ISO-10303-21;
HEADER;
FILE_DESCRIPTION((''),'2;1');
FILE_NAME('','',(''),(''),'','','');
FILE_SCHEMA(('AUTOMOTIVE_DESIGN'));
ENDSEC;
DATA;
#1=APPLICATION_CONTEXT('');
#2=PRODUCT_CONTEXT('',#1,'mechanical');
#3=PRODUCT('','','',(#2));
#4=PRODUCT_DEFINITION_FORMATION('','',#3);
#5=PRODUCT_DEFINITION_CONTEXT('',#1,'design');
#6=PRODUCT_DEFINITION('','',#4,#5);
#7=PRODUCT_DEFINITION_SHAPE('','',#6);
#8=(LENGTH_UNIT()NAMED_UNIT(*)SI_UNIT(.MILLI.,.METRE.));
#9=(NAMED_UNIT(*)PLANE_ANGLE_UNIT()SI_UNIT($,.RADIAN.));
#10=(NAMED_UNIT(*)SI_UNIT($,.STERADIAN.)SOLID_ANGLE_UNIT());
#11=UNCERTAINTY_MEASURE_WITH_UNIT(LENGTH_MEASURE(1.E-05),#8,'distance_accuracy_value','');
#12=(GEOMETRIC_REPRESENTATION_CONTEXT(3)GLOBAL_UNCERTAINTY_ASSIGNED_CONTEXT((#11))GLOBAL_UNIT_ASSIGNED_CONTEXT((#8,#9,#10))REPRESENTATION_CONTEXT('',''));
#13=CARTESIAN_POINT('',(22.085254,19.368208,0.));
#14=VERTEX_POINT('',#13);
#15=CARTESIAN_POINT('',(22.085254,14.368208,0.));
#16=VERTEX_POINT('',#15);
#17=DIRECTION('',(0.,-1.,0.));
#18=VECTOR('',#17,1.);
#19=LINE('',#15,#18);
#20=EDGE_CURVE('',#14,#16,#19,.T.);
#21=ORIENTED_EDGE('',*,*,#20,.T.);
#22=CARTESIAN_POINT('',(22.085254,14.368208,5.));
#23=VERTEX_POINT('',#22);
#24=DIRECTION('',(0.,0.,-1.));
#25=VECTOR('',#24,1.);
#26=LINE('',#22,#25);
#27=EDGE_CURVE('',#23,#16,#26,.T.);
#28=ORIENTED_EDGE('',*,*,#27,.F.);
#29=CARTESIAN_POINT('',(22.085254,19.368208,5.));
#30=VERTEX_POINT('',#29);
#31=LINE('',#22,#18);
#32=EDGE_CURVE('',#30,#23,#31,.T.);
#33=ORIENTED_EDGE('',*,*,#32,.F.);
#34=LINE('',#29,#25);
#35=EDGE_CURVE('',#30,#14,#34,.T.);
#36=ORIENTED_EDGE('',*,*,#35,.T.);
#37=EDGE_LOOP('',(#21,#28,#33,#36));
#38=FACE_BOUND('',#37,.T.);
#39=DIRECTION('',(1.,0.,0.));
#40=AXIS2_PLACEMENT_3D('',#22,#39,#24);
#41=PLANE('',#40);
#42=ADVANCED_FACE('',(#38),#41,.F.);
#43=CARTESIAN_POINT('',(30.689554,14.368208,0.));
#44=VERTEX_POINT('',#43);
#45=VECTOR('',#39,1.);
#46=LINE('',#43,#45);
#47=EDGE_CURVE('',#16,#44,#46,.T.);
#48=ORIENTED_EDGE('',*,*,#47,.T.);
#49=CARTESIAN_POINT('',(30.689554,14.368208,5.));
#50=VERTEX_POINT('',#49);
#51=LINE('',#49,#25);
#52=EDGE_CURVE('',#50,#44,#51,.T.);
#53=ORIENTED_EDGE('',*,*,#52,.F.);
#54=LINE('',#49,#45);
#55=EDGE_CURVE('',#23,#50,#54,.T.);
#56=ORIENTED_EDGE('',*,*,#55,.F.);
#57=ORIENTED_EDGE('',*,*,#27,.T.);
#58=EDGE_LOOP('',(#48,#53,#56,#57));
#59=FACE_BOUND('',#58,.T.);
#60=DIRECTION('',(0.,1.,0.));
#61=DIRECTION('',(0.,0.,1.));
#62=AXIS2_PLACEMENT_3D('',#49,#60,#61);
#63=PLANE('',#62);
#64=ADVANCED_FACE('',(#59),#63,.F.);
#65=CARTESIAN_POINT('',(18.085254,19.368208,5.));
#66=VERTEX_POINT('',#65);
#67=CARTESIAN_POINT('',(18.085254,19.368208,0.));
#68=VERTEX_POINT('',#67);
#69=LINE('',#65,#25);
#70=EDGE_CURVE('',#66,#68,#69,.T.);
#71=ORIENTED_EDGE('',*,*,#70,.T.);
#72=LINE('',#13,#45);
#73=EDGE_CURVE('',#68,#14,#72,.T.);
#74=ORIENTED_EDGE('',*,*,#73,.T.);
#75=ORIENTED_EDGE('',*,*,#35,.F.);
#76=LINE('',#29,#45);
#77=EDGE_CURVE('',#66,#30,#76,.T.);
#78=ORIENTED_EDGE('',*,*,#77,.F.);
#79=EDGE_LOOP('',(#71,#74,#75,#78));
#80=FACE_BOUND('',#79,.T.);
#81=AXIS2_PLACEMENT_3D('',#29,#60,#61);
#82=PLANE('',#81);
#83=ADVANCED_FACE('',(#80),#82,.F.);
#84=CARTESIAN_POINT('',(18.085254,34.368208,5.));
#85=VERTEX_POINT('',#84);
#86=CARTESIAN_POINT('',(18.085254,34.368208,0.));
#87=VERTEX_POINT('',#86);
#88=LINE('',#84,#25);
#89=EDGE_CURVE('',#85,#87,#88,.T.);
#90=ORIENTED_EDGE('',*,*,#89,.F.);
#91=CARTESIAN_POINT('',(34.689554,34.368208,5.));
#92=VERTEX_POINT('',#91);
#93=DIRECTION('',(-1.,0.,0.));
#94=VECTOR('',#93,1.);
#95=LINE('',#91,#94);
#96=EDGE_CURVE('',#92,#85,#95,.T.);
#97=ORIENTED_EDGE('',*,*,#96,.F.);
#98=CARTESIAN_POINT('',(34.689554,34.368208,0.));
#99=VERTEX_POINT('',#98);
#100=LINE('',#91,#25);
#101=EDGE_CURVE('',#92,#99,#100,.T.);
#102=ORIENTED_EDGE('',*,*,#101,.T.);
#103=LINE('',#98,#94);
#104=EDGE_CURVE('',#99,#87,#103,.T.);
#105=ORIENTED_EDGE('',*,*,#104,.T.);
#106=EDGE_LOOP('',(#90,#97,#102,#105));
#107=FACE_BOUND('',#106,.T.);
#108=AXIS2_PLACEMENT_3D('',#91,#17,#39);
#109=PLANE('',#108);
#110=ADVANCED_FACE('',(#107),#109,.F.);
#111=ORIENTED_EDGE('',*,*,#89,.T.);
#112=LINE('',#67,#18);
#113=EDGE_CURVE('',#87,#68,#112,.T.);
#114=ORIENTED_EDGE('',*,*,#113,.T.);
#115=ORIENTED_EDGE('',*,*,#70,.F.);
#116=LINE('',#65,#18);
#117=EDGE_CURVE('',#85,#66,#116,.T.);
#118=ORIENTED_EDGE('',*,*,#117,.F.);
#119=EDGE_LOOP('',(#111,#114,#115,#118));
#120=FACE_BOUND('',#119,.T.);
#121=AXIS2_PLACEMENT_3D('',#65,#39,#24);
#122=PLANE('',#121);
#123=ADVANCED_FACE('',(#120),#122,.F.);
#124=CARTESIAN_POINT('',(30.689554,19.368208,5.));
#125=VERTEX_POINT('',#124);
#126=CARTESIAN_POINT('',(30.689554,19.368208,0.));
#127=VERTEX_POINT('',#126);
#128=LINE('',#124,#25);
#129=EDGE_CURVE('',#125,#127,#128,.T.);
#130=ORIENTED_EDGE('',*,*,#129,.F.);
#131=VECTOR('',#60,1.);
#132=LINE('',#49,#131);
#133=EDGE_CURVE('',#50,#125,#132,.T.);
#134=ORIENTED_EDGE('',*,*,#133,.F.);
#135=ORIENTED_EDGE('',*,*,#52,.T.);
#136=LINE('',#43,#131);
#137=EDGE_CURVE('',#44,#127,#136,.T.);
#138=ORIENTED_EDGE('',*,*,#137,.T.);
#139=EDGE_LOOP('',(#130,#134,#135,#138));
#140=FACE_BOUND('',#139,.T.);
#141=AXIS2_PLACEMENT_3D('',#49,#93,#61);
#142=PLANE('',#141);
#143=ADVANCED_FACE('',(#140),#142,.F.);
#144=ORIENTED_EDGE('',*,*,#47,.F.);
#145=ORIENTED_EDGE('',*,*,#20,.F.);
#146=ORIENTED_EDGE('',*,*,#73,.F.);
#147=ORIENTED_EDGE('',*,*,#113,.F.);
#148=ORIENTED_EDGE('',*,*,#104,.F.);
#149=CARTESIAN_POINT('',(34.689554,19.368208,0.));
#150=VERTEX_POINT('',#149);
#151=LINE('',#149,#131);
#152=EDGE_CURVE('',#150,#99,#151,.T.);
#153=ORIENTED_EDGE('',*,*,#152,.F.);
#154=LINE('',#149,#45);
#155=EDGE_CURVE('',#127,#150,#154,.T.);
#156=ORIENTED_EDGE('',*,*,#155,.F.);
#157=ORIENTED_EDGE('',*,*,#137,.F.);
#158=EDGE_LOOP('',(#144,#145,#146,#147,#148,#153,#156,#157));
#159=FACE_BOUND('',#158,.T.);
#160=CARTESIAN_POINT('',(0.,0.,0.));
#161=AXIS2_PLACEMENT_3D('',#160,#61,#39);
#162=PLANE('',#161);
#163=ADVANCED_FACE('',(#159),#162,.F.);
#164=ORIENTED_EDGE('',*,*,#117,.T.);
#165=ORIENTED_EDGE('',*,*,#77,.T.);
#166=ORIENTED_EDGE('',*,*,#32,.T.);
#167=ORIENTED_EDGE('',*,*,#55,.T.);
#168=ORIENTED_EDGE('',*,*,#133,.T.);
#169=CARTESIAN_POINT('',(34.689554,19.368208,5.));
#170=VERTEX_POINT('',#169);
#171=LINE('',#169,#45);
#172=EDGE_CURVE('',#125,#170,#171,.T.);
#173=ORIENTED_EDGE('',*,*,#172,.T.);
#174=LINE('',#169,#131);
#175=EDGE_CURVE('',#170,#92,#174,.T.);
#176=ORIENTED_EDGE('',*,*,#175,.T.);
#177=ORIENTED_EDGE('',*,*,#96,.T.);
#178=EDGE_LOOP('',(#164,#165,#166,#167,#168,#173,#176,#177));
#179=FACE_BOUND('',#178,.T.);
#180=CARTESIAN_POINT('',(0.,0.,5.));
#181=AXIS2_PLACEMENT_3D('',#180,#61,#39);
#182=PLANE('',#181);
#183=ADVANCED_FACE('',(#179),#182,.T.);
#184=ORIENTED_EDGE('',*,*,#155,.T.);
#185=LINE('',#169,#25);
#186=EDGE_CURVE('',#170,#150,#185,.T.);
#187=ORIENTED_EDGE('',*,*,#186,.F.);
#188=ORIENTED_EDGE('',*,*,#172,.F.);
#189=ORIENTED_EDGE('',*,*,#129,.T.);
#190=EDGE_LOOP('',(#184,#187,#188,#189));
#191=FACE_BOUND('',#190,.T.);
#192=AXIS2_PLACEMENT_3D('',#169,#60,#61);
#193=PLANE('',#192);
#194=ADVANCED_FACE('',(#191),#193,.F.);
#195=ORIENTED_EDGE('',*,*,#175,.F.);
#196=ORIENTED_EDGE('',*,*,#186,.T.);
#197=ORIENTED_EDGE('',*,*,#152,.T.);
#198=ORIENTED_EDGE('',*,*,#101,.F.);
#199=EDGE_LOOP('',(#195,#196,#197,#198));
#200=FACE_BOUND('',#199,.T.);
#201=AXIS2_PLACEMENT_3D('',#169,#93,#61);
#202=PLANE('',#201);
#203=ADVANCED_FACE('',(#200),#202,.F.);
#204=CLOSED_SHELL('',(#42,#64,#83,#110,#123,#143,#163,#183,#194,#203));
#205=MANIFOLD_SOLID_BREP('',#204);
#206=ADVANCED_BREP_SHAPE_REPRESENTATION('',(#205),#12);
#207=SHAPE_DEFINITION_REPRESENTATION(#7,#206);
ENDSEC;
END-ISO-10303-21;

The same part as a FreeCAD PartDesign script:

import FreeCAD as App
import Part
import Sketcher

V = App.Vector


def add_polygon(sketch, points):
    """Adds a closed chain of lines whose ends are joined by coincident constraints."""
    first, n = sketch.GeometryCount, len(points)
    for a, b in zip(points, points[1:] + points[:1]):
        sketch.addGeometry(Part.LineSegment(App.Vector(*a, 0), App.Vector(*b, 0)), False)
    for i in range(n):
        sketch.addConstraint(Sketcher.Constraint("Coincident", first + i, 2, first + (i + 1) % n, 1))

doc = App.newDocument("Part")
body = doc.addObject("PartDesign::Body", "Body")

sketch1 = body.newObject("Sketcher::SketchObject", "Sketch")
sketch1.AttachmentSupport = (doc.getObject("XY_Plane"), [""])
sketch1.MapMode = "FlatFace"
add_polygon(sketch1, [(22.1, 14.4), (30.7, 14.4), (30.7, 19.4), (34.7, 19.4), (34.7, 34.4), (18.1, 34.4), (18.1, 19.4), (22.1, 19.4)])
sketch1.addConstraint([
    Sketcher.Constraint("Horizontal", 0),
    Sketcher.Constraint("Vertical", 1),
    Sketcher.Constraint("Horizontal", 2),
    Sketcher.Constraint("Vertical", 3),
    Sketcher.Constraint("Horizontal", 4),
    Sketcher.Constraint("Vertical", 5),
    Sketcher.Constraint("Horizontal", 6),
    Sketcher.Constraint("Vertical", 7),
    Sketcher.Constraint("Horizontal", 2, 2, 5, 2),
    Sketcher.Constraint("Equal", 2, 6),
    Sketcher.Constraint("DistanceX", 2, 1, 2, 2, 4.0),
    Sketcher.Constraint("DistanceY", 1, 1, 1, 2, 5.0),
    Sketcher.Constraint("DistanceY", 3, 1, 3, 2, 15.0),
    Sketcher.Constraint("DistanceX", 0, 1, 0, 2, 8.6043),
    Sketcher.Constraint("DistanceY", -1, 1, 0, 2, 14.368208),
    Sketcher.Constraint("DistanceX", -1, 1, 0, 2, 30.689554),
])
pad1 = body.newObject("PartDesign::Pad", "Pad")
pad1.Profile = sketch1
pad1.Length = 5

doc.recompute()
